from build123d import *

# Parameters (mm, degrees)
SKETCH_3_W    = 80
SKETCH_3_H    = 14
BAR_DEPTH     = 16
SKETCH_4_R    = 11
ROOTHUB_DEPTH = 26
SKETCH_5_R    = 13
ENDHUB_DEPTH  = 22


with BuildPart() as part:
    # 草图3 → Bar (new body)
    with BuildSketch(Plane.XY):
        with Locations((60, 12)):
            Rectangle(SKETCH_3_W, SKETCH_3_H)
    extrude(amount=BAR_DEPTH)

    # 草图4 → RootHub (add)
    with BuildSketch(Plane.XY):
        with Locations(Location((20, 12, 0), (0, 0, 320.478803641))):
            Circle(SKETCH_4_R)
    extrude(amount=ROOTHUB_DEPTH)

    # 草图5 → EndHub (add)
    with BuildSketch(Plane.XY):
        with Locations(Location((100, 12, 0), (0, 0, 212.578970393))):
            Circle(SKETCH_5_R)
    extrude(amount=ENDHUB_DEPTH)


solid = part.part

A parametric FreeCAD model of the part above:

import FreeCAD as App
import Part
import Sketcher
Q = App.Units.Quantity


def add_polygon(sketch, points):
    """Adds a closed chain of lines whose ends are joined by coincident constraints."""
    first, n = sketch.GeometryCount, len(points)
    for a, b in zip(points, points[1:] + points[:1]):
        sketch.addGeometry(Part.LineSegment(App.Vector(*a, 0), App.Vector(*b, 0)), False)
    for i in range(n):
        sketch.addConstraint(Sketcher.Constraint("Coincident", first + i, 2, first + (i + 1) % n, 1))

doc = App.newDocument("Part")
body = doc.addObject("PartDesign::Body", "Body")

sketch1 = body.newObject("Sketcher::SketchObject", "Sketch")
sketch1.AttachmentSupport = (doc.getObject("XY_Plane"), [""])
sketch1.MapMode = "FlatFace"
add_polygon(sketch1, [(20, 19), (20, 5), (100, 5), (100, 19)])
sketch1.addConstraint([
    Sketcher.Constraint("Vertical", 0),
    Sketcher.Constraint("Horizontal", 1),
    Sketcher.Constraint("Vertical", 2),
    Sketcher.Constraint("Horizontal", 3),
    Sketcher.Constraint("DistanceX", 1, 1, 1, 2, Q("80 mm")),
    Sketcher.Constraint("DistanceY", 0, 2, 0, 1, Q("14 mm")),
    Sketcher.Constraint("DistanceX", -1, 1, 0, 2, Q("20 mm")),
    Sketcher.Constraint("DistanceY", -1, 1, 0, 2, Q("5 mm")),
])
pad1 = body.newObject("PartDesign::Pad", "Pad")
pad1.Profile = sketch1
pad1.Length = 16

sketch2 = body.newObject("Sketcher::SketchObject", "Sketch001")
sketch2.AttachmentSupport = (doc.getObject("XY_Plane"), [""])
sketch2.MapMode = "FlatFace"
sketch2.addGeometry(Part.Circle(App.Vector(20, 12, 0), App.Vector(0, 0, 1), 11), False)
sketch2.addConstraint([
    Sketcher.Constraint("Diameter", 0, Q("22 mm")),
    Sketcher.Constraint("DistanceX", -1, 1, 0, 3, Q("20 mm")),
    Sketcher.Constraint("DistanceY", -1, 1, 0, 3, Q("12 mm")),
])
pad2 = body.newObject("PartDesign::Pad", "Pad001")
pad2.Profile = sketch2
pad2.Length = 26

sketch3 = body.newObject("Sketcher::SketchObject", "Sketch002")
sketch3.AttachmentSupport = (doc.getObject("XY_Plane"), [""])
sketch3.MapMode = "FlatFace"
sketch3.addGeometry(Part.Circle(App.Vector(100, 12, 0), App.Vector(0, 0, 1), 13), False)
sketch3.addConstraint([
    Sketcher.Constraint("Diameter", 0, Q("26 mm")),
    Sketcher.Constraint("DistanceX", -1, 1, 0, 3, Q("100 mm")),
    Sketcher.Constraint("DistanceY", -1, 1, 0, 3, Q("12 mm")),
])
pad3 = body.newObject("PartDesign::Pad", "Pad002")
pad3.Profile = sketch3
pad3.Length = 22

doc.recompute()
